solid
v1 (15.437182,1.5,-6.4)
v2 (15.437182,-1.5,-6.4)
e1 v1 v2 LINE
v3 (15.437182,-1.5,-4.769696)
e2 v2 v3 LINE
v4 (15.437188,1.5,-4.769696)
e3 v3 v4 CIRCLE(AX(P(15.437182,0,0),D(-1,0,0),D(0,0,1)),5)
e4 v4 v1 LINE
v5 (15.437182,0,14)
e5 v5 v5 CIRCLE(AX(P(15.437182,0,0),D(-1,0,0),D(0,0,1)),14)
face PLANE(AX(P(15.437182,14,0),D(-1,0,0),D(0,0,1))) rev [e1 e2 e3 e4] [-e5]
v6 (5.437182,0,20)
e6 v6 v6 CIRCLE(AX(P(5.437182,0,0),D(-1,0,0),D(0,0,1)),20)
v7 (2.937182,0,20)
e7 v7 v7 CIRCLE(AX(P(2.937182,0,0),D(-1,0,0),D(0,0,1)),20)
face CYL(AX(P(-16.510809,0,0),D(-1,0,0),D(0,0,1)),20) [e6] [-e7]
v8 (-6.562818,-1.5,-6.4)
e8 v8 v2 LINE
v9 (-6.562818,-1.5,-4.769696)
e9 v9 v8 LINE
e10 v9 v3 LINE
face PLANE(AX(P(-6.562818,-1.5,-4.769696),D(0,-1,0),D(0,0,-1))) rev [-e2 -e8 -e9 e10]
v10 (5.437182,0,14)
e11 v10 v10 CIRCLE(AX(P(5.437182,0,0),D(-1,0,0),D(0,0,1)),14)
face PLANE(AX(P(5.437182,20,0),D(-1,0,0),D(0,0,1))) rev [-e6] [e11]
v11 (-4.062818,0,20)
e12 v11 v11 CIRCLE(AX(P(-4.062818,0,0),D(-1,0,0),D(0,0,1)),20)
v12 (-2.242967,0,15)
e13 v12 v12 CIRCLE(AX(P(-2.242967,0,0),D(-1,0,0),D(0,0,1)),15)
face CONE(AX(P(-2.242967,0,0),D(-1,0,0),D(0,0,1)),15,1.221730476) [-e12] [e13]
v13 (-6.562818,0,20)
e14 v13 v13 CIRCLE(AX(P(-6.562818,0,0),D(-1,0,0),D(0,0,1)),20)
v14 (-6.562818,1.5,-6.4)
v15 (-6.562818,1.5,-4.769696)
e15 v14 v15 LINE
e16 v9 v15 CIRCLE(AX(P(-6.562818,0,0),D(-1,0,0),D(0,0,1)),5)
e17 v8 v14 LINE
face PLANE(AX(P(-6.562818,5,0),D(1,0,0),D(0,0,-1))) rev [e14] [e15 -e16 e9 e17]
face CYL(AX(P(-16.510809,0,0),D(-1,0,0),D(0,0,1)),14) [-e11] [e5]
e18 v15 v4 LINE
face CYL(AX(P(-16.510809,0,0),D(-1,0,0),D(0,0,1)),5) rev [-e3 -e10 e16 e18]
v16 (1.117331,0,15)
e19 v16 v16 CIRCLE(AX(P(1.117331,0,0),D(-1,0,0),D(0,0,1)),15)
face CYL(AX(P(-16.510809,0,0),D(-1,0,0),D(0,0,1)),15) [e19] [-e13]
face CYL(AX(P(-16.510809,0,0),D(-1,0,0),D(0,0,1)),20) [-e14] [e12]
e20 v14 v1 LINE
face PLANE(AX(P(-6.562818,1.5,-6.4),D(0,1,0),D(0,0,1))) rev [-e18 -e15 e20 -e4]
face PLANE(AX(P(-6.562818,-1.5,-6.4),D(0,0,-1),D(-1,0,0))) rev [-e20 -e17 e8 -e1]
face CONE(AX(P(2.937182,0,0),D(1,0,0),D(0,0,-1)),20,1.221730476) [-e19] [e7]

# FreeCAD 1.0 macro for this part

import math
import FreeCAD as App
import Part
import Sketcher
Q = App.Units.Quantity

doc = App.newDocument("Part")
body = doc.addObject("PartDesign::Body", "Body")

# Sketch on XY plane
sketch1 = doc.addObject("Sketcher::SketchObject", "Sketch")
body.addObject(sketch1)
sketch1.AttachmentSupport = (doc.XY_Plane, [""])
sketch1.MapMode = "FlatFace"
sketch1.addGeometry([
    Part.LineSegment(App.Vector(-6.6, 20, 0), App.Vector(-6.6, 5, 0)),  # 0
    Part.LineSegment(App.Vector(-6.6, 5, 0), App.Vector(15.4, 5, 0)),  # 1
    Part.LineSegment(App.Vector(15.4, 5, 0), App.Vector(15.4, 14, 0)),  # 2
    Part.LineSegment(App.Vector(15.4, 14, 0), App.Vector(5.4, 14, 0)),  # 3
    Part.LineSegment(App.Vector(5.4, 14, 0), App.Vector(5.4, 20, 0)),  # 4
    Part.LineSegment(App.Vector(5.4, 20, 0), App.Vector(2.9, 20, 0)),  # 5
    Part.LineSegment(App.Vector(2.9, 20, 0), App.Vector(1.1, 15, 0)),  # 6
    Part.LineSegment(App.Vector(1.1, 15, 0), App.Vector(-2.2, 15, 0)),  # 7
    Part.LineSegment(App.Vector(-2.2, 15, 0), App.Vector(-4.1, 20, 0)),  # 8
    Part.LineSegment(App.Vector(-4.1, 20, 0), App.Vector(-6.6, 20, 0)),  # 9
], False)
sketch1.addConstraint([
    Sketcher.Constraint("Coincident", 0, 2, 1, 1),
    Sketcher.Constraint("Coincident", 1, 2, 2, 1),
    Sketcher.Constraint("Coincident", 2, 2, 3, 1),
    Sketcher.Constraint("Coincident", 3, 2, 4, 1),
    Sketcher.Constraint("Coincident", 4, 2, 5, 1),
    Sketcher.Constraint("Coincident", 5, 2, 6, 1),
    Sketcher.Constraint("Coincident", 6, 2, 7, 1),
    Sketcher.Constraint("Coincident", 7, 2, 8, 1),
    Sketcher.Constraint("Coincident", 8, 2, 9, 1),
    Sketcher.Constraint("Coincident", 9, 2, 0, 1),
    Sketcher.Constraint("Vertical", 0),
    Sketcher.Constraint("Horizontal", 1),
    Sketcher.Constraint("Vertical", 2),
    Sketcher.Constraint("Horizontal", 3),
    Sketcher.Constraint("Vertical", 4),
    Sketcher.Constraint("Horizontal", 5),
    Sketcher.Constraint("Horizontal", 7),
    Sketcher.Constraint("Horizontal", 9),
    Sketcher.Constraint("Horizontal", 5, 2, 8, 2),
    Sketcher.Constraint("Equal", 5, 9),
    Sketcher.Constraint("Equal", 6, 8),
    Sketcher.Constraint("DistanceX", 1, 1, 1, 2, 22.0),
    Sketcher.Constraint("DistanceX", 3, 2, 3, 1, 10.0),
    Sketcher.Constraint("DistanceY", 0, 2, 0, 1, 15.0),
    Sketcher.Constraint("DistanceY", 2, 1, 2, 2, 9.0),
    Sketcher.Constraint("Angle", 6, Q("-110 deg")),
    Sketcher.Constraint("DistanceX", 5, 2, 5, 1, 2.5),
    Sketcher.Constraint("DistanceY", -1, 1, 0, 2, 5.0),
    Sketcher.Constraint("DistanceY", -1, 1, 6, 2, 15.0),
    Sketcher.Constraint("DistanceX", -1, 1, 6, 2, 1.117331),
])
revolution = doc.addObject("PartDesign::Revolution", "Revolution")
body.addObject(revolution)
revolution.Profile = sketch1
revolution.ReferenceAxis = (sketch1, ["H_Axis"])
revolution.Angle = 360

# Sketch on YZ plane
sketch2 = doc.addObject("Sketcher::SketchObject", "Sketch001")
body.addObject(sketch2)
sketch2.AttachmentSupport = (doc.YZ_Plane, [""])
sketch2.MapMode = "FlatFace"
sketch2.AttachmentOffset = App.Placement(App.Vector(0, 0, 15.437182), App.Rotation())
sketch2.addGeometry([
    Part.LineSegment(App.Vector(-1.5, -4.8, 0), App.Vector(-1.5, -6.4, 0)),
    Part.LineSegment(App.Vector(-1.5, -6.4, 0), App.Vector(1.5, -6.4, 0)),
    Part.LineSegment(App.Vector(1.5, -6.4, 0), App.Vector(1.5, -4.8, 0)),
    Part.ArcOfCircle(Part.Circle(App.Vector(0, 0, 0), App.Vector(0, 0, 1), 5), math.radians(-107), math.radians(-73)),
], False)
sketch2.addConstraint([
    Sketcher.Constraint("Coincident", 0, 2, 1, 1),
    Sketcher.Constraint("Coincident", 1, 2, 2, 1),
    Sketcher.Constraint("Coincident", 2, 2, 3, 2),
    Sketcher.Constraint("Coincident", 3, 1, 0, 1),
    Sketcher.Constraint("Vertical", 0),
    Sketcher.Constraint("Horizontal", 1),
    Sketcher.Constraint("Vertical", 2),
    Sketcher.Constraint("Coincident", 3, 3, -1, 1),
    Sketcher.Constraint("Horizontal", 2, 2, 3, 1),
    Sketcher.Constraint("Radius", 3, 5.0),
    Sketcher.Constraint("DistanceX", 1, 1, 1, 2, 3.0),
    Sketcher.Constraint("DistanceY", 0, 2, -1, 1, 6.4),
])
pocket1 = doc.addObject("PartDesign::Pocket", "Pocket")
body.addObject(pocket1)
pocket1.Profile = sketch2
pocket1.Type = "ThroughAll"
pocket1.Midplane = True

doc.recompute()
